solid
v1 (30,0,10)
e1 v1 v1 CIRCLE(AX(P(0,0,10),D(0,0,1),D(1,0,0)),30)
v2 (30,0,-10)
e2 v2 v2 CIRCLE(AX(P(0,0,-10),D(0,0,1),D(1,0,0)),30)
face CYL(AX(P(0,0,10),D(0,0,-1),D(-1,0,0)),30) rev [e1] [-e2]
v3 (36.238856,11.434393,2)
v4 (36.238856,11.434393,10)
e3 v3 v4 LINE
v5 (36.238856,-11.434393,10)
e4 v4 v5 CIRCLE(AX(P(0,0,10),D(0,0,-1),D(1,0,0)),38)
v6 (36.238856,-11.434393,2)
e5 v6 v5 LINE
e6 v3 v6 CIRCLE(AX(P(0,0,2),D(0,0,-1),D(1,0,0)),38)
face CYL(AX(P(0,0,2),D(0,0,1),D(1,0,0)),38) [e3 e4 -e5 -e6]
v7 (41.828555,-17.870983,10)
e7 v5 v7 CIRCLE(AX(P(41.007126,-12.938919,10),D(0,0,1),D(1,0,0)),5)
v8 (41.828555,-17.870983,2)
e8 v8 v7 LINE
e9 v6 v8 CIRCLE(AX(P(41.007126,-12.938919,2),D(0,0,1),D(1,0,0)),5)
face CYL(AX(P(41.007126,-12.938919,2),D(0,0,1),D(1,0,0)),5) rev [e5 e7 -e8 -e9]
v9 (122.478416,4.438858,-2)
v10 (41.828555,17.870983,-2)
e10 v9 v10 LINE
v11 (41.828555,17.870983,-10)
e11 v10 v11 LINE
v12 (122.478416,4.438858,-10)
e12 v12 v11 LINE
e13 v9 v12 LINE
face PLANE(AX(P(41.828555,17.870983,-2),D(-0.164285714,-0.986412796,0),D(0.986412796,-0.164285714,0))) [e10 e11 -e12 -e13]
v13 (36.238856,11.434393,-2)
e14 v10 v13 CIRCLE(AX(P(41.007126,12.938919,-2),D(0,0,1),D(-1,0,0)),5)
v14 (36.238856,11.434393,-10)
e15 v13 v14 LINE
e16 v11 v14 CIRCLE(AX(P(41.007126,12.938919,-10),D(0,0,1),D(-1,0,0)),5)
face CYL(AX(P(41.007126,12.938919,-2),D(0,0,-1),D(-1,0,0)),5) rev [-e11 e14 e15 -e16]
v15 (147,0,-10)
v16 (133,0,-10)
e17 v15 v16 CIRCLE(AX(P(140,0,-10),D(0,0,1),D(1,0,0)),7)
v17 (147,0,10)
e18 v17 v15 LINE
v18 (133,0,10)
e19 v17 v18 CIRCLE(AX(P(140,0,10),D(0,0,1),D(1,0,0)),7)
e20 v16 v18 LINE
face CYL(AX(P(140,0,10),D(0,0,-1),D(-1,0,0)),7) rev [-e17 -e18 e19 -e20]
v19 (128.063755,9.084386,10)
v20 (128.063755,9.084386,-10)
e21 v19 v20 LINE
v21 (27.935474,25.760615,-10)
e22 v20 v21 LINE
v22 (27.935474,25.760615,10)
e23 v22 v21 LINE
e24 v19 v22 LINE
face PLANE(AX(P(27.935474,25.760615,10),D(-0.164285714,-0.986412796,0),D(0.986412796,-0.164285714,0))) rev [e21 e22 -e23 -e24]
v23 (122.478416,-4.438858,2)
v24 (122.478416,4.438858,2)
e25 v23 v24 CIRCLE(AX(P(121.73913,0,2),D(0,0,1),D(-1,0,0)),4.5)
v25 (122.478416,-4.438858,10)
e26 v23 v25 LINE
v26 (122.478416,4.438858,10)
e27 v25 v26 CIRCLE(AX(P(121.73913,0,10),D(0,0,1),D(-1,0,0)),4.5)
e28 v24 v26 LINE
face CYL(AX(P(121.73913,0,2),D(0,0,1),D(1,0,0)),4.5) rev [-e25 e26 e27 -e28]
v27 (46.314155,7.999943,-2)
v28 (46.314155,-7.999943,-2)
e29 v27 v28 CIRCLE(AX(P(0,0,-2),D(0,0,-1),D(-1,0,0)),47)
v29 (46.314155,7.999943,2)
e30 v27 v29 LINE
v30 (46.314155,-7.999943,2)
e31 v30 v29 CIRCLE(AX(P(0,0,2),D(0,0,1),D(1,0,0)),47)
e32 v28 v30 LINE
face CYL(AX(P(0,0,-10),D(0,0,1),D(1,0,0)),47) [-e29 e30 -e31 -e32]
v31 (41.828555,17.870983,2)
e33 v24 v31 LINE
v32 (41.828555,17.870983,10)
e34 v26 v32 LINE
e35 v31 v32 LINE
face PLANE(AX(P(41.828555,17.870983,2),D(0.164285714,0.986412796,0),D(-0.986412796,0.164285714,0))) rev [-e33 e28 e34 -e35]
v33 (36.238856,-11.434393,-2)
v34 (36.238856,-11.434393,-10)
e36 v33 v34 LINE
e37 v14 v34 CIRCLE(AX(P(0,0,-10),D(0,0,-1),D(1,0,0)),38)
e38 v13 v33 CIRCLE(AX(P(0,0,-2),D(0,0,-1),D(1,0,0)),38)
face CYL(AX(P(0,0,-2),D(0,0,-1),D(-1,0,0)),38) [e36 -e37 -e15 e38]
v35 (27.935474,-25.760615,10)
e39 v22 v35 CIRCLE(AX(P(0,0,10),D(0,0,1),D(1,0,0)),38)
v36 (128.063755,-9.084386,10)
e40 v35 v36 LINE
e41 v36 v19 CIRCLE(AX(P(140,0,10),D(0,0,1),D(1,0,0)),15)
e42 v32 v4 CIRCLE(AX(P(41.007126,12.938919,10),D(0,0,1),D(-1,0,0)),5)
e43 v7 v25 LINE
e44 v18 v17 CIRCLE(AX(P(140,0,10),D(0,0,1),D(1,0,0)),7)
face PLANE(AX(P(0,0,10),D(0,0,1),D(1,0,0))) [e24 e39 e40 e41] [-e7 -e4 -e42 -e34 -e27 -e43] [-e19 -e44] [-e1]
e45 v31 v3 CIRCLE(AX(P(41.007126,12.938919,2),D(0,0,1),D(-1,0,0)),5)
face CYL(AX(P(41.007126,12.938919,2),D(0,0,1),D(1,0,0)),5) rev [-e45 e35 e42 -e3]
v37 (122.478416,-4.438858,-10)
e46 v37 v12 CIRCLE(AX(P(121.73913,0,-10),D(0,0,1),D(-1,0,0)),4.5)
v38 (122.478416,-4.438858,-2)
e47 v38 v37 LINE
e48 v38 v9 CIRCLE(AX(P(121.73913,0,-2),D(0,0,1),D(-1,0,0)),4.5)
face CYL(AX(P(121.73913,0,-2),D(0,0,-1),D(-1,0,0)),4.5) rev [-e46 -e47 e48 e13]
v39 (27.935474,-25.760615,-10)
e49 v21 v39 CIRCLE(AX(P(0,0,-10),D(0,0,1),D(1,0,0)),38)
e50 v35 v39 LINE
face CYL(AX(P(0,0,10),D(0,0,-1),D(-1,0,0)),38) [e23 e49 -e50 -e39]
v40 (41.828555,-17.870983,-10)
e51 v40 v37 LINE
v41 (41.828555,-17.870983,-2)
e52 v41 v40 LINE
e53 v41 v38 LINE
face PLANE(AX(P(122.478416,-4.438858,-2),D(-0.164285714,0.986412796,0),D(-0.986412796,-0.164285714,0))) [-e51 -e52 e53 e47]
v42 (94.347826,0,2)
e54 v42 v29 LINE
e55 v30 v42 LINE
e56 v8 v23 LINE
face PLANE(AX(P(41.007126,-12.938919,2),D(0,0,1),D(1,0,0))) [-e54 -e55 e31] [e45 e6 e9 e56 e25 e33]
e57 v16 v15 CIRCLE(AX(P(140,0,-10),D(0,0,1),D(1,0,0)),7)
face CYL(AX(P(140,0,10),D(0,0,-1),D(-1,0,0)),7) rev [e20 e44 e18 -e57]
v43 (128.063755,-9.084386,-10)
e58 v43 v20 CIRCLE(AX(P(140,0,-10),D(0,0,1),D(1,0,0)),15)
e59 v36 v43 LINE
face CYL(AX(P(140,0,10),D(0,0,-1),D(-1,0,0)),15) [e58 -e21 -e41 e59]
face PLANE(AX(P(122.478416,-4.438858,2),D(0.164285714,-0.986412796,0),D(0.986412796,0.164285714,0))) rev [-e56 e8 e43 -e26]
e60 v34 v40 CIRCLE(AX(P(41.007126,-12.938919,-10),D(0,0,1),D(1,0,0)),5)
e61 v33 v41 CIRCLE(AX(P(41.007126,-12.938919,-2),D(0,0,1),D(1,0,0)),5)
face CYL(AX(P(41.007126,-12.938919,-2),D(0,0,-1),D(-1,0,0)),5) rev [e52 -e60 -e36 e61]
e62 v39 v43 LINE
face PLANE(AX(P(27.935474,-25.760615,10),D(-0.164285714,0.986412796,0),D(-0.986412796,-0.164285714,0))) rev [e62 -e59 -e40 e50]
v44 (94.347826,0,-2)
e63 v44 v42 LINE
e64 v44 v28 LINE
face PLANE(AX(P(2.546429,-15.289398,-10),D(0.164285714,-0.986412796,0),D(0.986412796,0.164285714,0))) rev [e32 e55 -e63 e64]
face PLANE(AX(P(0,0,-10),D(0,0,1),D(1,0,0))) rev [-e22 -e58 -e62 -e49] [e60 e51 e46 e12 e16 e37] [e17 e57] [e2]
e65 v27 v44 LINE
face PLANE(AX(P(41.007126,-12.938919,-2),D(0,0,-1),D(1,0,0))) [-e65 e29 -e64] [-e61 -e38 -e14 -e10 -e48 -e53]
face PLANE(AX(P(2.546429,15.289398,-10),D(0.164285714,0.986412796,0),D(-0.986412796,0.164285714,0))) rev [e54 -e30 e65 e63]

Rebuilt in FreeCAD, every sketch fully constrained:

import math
import FreeCAD as App
import Part
import Sketcher
from FreeCAD import Vector
Q = App.Units.Quantity

doc = App.newDocument("Part")
body = doc.addObject("PartDesign::Body", "Body")

# Sketch on XY plane
sketch1 = body.newObject("Sketcher::SketchObject", "Sketch")
sketch1.AttachmentSupport = (doc.getObject("XY_Plane"), [""])
sketch1.MapMode = "FlatFace"
sketch1.addGeometry([
    Part.LineSegment(Vector(128, 9, 0), Vector(28, 26, 0)),  # 0
    Part.ArcOfCircle(Part.Circle(Vector(0, 0, 0), Vector(0, 0, 1), 38), math.radians(43), math.radians(317)),  # 1
    Part.LineSegment(Vector(28, -26, 0), Vector(128, -9, 0)),  # 2
    Part.ArcOfCircle(Part.Circle(Vector(140, 0, 0), Vector(0, 0, 1), 15), math.radians(-143), math.radians(143)),  # 3
    Part.Circle(Vector(140, 0, 0), Vector(0, 0, 1), 7),  # 4
    Part.Circle(Vector(0, 0, 0), Vector(0, 0, 1), 30),  # 5
], False)
sketch1.addConstraint([
    Sketcher.Constraint("Coincident", 0, 2, 1, 1),
    Sketcher.Constraint("Coincident", 1, 2, 2, 1),
    Sketcher.Constraint("Coincident", 2, 2, 3, 1),
    Sketcher.Constraint("Coincident", 3, 2, 0, 1),
    Sketcher.Constraint("Coincident", 1, 3, -1, 1),
    Sketcher.Constraint("Coincident", 5, 3, -1, 1),
    Sketcher.Constraint("Coincident", 4, 3, 3, 3),
    Sketcher.Constraint("Symmetric", 2, 2, 3, 2, -1),
    Sketcher.Constraint("Vertical", 0, 2, 1, 2),
    Sketcher.Constraint("Diameter", 4, Q("14 mm")),
    Sketcher.Constraint("Diameter", 5, Q("60 mm")),
    Sketcher.Constraint("Radius", 1, Q("38 mm")),
    Sketcher.Constraint("Radius", 3, Q("15 mm")),
    Sketcher.Constraint("DistanceX", -1, 1, 3, 3, Q("140 mm")),
    Sketcher.Constraint("DistanceY", 2, 2, 0, 2, Q("34.845001 mm")),
    Sketcher.Constraint("DistanceY", 1, 2, 0, 2, Q("51.521231 mm")),
])
pad1 = body.newObject("PartDesign::Pad", "Pad")
pad1.Profile = sketch1
pad1.Length = 20
pad1.Midplane = True

# Sketch on XY plane
sketch2 = body.newObject("Sketcher::SketchObject", "Sketch001")
sketch2.AttachmentSupport = (doc.getObject("XY_Plane"), [""])
sketch2.MapMode = "FlatFace"
sketch2.AttachmentOffset = App.Placement(Vector(0, 0, 10), App.Rotation())
sketch2.addGeometry([
    Part.LineSegment(Vector(122.5, 4.4, 0), Vector(41.8, 17.9, 0)),  # 0
    Part.ArcOfCircle(Part.Circle(Vector(41, 12.9, 0), Vector(0, 0, 1), 5), math.radians(81), math.radians(198)),  # 1
    Part.ArcOfCircle(Part.Circle(Vector(0, 0, 0), Vector(0, 0, 1), 38), math.radians(-18), math.radians(18)),  # 2
    Part.ArcOfCircle(Part.Circle(Vector(41, -12.9, 0), Vector(0, 0, 1), 5), math.radians(162), math.radians(279)),  # 3
    Part.LineSegment(Vector(41.8, -17.9, 0), Vector(122.5, -4.4, 0)),  # 4
    Part.ArcOfCircle(Part.Circle(Vector(121.7, 0, 0), Vector(0, 0, 1), 4.5), math.radians(-81), math.radians(81)),  # 5
], False)
sketch2.addConstraint([
    Sketcher.Constraint("Tangent", 0, 2, 1, 1),
    Sketcher.Constraint("Tangent", 1, 2, 2, 2),
    Sketcher.Constraint("Tangent", 2, 1, 3, 1),
    Sketcher.Constraint("Tangent", 3, 2, 4, 1),
    Sketcher.Constraint("Tangent", 4, 2, 5, 1),
    Sketcher.Constraint("Tangent", 5, 2, 0, 1),
    Sketcher.Constraint("Coincident", 2, 3, -1, 1),
    Sketcher.Constraint("Equal", 1, 3),
    Sketcher.Constraint("Symmetric", 0, 2, 3, 2, -1),
    Sketcher.Constraint("Radius", 1, Q("5 mm")),
    Sketcher.Constraint("Radius", 2, Q("38 mm")),
    Sketcher.Constraint("Radius", 5, Q("4.5 mm")),
    Sketcher.Constraint("DistanceY", 3, 3, 0, 2, Q("30.809901 mm")),
    Sketcher.Constraint("DistanceX", 1, 2, 0, 2, Q("5.589699 mm")),
])
pocket1 = body.newObject("PartDesign::Pocket", "Pocket")
pocket1.Profile = sketch2
pocket1.Length = 8
doc.recompute()

mirrored = body.newObject("PartDesign::Mirrored", "Mirrored")
mirrored.Originals = [pocket1]
mirrored.MirrorPlane = (doc.getObject("XY_Plane"), [""])
body.Tip = mirrored

# Sketch on XY plane
sketch3 = body.newObject("Sketcher::SketchObject", "Sketch002")
sketch3.AttachmentSupport = (doc.getObject("XY_Plane"), [""])
sketch3.MapMode = "FlatFace"
sketch3.AttachmentOffset = App.Placement(Vector(0, 0, 2), App.Rotation())
sketch3.addGeometry([
    Part.ArcOfCircle(Part.Circle(Vector(0, 0, 0), Vector(0, 0, 1), 47), math.radians(-9.8), math.radians(9.8)),
    Part.LineSegment(Vector(46, -8, 0), Vector(94, 0, 0)),
    Part.LineSegment(Vector(94, 0, 0), Vector(46, 8, 0)),
], False)
sketch3.addConstraint([
    Sketcher.Constraint("Coincident", 0, 1, 1, 1),
    Sketcher.Constraint("Coincident", 1, 2, 2, 1),
    Sketcher.Constraint("Coincident", 2, 2, 0, 2),
    Sketcher.Constraint("Coincident", 0, 3, -1, 1),
    Sketcher.Constraint("PointOnObject", 1, 2, -1),
    Sketcher.Constraint("Vertical", 0, 1, 2, 2),
    Sketcher.Constraint("Radius", 0, Q("47 mm")),
    Sketcher.Constraint("DistanceX", 0, 1, 1, 2, Q("48.033672 mm")),
    Sketcher.Constraint("Distance", 1, Q("48.695305 mm")),
])
pocket2 = body.newObject("PartDesign::Pocket", "Pocket001")
pocket2.Profile = sketch3
pocket2.Type = "ThroughAll"

doc.recompute()
